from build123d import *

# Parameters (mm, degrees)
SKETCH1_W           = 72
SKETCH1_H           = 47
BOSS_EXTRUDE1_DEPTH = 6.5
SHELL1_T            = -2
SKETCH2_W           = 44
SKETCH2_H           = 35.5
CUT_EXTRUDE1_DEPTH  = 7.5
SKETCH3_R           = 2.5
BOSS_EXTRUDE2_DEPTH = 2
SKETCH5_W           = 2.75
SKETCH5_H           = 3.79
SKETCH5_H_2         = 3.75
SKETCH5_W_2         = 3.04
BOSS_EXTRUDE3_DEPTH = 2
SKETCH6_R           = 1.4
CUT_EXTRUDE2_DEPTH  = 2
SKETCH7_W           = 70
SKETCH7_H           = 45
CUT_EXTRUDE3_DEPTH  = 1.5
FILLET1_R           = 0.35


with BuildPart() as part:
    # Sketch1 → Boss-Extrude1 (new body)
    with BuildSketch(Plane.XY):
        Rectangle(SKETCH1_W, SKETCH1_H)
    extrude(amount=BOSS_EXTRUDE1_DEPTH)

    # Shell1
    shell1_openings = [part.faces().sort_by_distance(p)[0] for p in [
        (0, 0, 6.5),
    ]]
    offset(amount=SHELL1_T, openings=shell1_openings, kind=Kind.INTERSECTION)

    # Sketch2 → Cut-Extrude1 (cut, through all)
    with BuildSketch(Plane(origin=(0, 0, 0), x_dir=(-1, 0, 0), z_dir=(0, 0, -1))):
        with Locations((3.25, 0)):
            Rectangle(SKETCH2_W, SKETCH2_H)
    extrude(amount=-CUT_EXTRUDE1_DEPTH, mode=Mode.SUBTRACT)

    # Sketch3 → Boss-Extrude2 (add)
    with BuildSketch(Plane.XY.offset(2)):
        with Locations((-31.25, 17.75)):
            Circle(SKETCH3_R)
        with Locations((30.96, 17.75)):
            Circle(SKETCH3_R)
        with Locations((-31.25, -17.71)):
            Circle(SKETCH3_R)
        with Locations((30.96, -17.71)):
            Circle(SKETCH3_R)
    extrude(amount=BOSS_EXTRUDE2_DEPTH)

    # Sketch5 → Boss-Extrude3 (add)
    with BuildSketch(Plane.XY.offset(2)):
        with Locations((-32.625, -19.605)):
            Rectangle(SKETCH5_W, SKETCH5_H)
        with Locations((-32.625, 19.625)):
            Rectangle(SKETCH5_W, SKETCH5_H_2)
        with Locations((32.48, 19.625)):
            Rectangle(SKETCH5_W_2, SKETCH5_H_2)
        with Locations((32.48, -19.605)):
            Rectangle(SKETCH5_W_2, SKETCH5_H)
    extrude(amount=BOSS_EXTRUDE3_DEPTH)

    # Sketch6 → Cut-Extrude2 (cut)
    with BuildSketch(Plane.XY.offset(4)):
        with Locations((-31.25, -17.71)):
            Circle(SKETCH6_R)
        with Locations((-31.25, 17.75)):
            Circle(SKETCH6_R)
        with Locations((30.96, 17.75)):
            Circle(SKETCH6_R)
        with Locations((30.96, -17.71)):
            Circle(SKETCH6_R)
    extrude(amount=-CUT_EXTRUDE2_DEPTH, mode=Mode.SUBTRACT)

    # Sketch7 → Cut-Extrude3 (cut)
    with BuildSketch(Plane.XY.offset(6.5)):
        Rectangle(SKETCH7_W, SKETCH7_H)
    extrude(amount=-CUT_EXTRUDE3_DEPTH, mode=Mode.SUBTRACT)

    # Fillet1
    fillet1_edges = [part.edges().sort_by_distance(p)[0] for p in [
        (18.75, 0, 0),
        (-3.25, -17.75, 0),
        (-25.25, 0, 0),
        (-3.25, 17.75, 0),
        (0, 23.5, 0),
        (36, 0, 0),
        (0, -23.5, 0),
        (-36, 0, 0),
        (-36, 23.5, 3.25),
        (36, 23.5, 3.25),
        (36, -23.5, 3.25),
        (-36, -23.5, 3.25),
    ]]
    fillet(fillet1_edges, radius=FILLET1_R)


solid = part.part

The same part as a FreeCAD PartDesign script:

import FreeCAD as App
import Part
import Sketcher

V = App.Vector
Q = App.Units.Quantity


def edges_at(feature, points):
    """Names of the edges that pass closest to the given points."""
    edges = feature.Shape.Edges
    near = lambda p: min(range(len(edges)), key=lambda i: edges[i].distToShape(Part.Vertex(*p))[0])
    return sorted({f"Edge{near(p) + 1}" for p in points})


def faces_at(feature, points):
    """Names of the faces that lie closest to the given points."""
    faces = feature.Shape.Faces
    near = lambda p: min(range(len(faces)), key=lambda i: faces[i].distToShape(Part.Vertex(*p))[0])
    return sorted({f"Face{near(p) + 1}" for p in points})

doc = App.newDocument("Part")
params = doc.addObject("Spreadsheet::Sheet", "Params")
for row, (alias, value) in enumerate([
    ("sketch1_width", "72 mm"),
    ("sketch1_height", "47 mm"),
    ("pad1_length", "6.5 mm"),
    ("thickness_wall", "2 mm"),
    ("sketch2_width", "44 mm"),
    ("sketch2_height", "35.5 mm"),
    ("sketch3_diameter", "5 mm"),
    ("pad2_length", "2 mm"),
    ("sketch4_width", "2.75 mm"),
    ("sketch4_width2", "3.04 mm"),
    ("sketch4_height", "3.79 mm"),
    ("sketch4_height2", "3.75 mm"),
    ("pad3_length", "2 mm"),
    ("sketch5_diameter", "2.8 mm"),
    ("pocket2_length", "2 mm"),
    ("sketch6_width", "70 mm"),
    ("sketch6_height", "45 mm"),
    ("pocket3_length", "1.5 mm"),
    ("fillet_radius", "0.35 mm"),
], start=1):
    params.set(f"A{row}", alias)
    params.set(f"B{row}", "=" + value)
    params.setAlias(f"B{row}", alias)

body = doc.addObject("PartDesign::Body", "Body")

# Sketch on XY plane
sketch1 = body.newObject("Sketcher::SketchObject", "Sketch")
sketch1.AttachmentSupport = (doc.getObject("XY_Plane"), [""])
sketch1.MapMode = "FlatFace"
sketch1.addGeometry([
    Part.LineSegment(V(-36, 23.5, 0), V(-36, -23.5, 0)),
    Part.LineSegment(V(-36, -23.5, 0), V(36, -23.5, 0)),
    Part.LineSegment(V(36, -23.5, 0), V(36, 23.5, 0)),
    Part.LineSegment(V(36, 23.5, 0), V(-36, 23.5, 0)),
], False)
sketch1.addConstraint([
    Sketcher.Constraint("Coincident", 0, 2, 1, 1),
    Sketcher.Constraint("Coincident", 1, 2, 2, 1),
    Sketcher.Constraint("Coincident", 2, 2, 3, 1),
    Sketcher.Constraint("Coincident", 3, 2, 0, 1),
    Sketcher.Constraint("Vertical", 0),
    Sketcher.Constraint("Horizontal", 1),
    Sketcher.Constraint("Vertical", 2),
    Sketcher.Constraint("Horizontal", 3),
    Sketcher.Constraint("Symmetric", 0, 2, 2, 2, -1, 1),
    Sketcher.Constraint("DistanceX", 1, 1, 1, 2, Q("72 mm")),
    Sketcher.Constraint("DistanceY", 0, 2, 0, 1, Q("47 mm")),
])
sketch1.setExpression("Constraints[9]", "Params.sketch1_width")
sketch1.setExpression("Constraints[10]", "Params.sketch1_height")
pad1 = body.newObject("PartDesign::Pad", "Pad")
pad1.Profile = sketch1
pad1.setExpression("Length", "Params.pad1_length")
doc.recompute()

thickness = body.newObject("PartDesign::Thickness", "Thickness")
thickness.Base = (pad1, faces_at(pad1, [(0, 0, 6.5)]))
thickness.setExpression("Value", "Params.thickness_wall")
thickness.Reversed = True
thickness.Join = "Intersection"

# Sketch on XY plane
sketch2 = body.newObject("Sketcher::SketchObject", "Sketch001")
sketch2.AttachmentSupport = (doc.getObject("XY_Plane"), [""])
sketch2.MapMode = "FlatFace"
sketch2.addGeometry([
    Part.LineSegment(V(18.75, 17.75, 0), V(18.75, -17.75, 0)),
    Part.LineSegment(V(18.75, -17.75, 0), V(-25.25, -17.75, 0)),
    Part.LineSegment(V(-25.25, -17.75, 0), V(-25.25, 17.75, 0)),
    Part.LineSegment(V(-25.25, 17.75, 0), V(18.75, 17.75, 0)),
], False)
sketch2.addConstraint([
    Sketcher.Constraint("Coincident", 0, 2, 1, 1),
    Sketcher.Constraint("Coincident", 1, 2, 2, 1),
    Sketcher.Constraint("Coincident", 2, 2, 3, 1),
    Sketcher.Constraint("Coincident", 3, 2, 0, 1),
    Sketcher.Constraint("Vertical", 0),
    Sketcher.Constraint("Horizontal", 1),
    Sketcher.Constraint("Vertical", 2),
    Sketcher.Constraint("Horizontal", 3),
    Sketcher.Constraint("DistanceX", 1, 2, 1, 1, Q("44 mm")),
    Sketcher.Constraint("DistanceY", 0, 2, 0, 1, Q("35.5 mm")),
    Sketcher.Constraint("DistanceX", -1, 1, 0, 2, Q("18.75 mm")),
    Sketcher.Constraint("DistanceY", 0, 2, -1, 1, Q("17.75 mm")),
])
sketch2.setExpression("Constraints[8]", "Params.sketch2_width")
sketch2.setExpression("Constraints[9]", "Params.sketch2_height")
pocket1 = body.newObject("PartDesign::Pocket", "Pocket")
pocket1.Profile = sketch2
pocket1.Type = "ThroughAll"
pocket1.Reversed = True

# Sketch on XY plane
sketch3 = body.newObject("Sketcher::SketchObject", "Sketch002")
sketch3.AttachmentSupport = (doc.getObject("XY_Plane"), [""])
sketch3.MapMode = "FlatFace"
sketch3.AttachmentOffset = App.Placement(V(0, 0, 2), App.Rotation())
sketch3.addGeometry([
    Part.Circle(V(-31.25, 17.75, 0), V(0, 0, 1), 2.5),
    Part.Circle(V(30.96, 17.75, 0), V(0, 0, 1), 2.5),
    Part.Circle(V(-31.25, -17.71, 0), V(0, 0, 1), 2.5),
    Part.Circle(V(30.96, -17.71, 0), V(0, 0, 1), 2.5),
], False)
sketch3.addConstraint([
    Sketcher.Constraint("Equal", 0, 1),
    Sketcher.Constraint("Equal", 1, 2),
    Sketcher.Constraint("Equal", 2, 3),
    Sketcher.Constraint("Horizontal", 0, 3, 1, 3),
    Sketcher.Constraint("Horizontal", 2, 3, 3, 3),
    Sketcher.Constraint("Vertical", 0, 3, 2, 3),
    Sketcher.Constraint("Vertical", 1, 3, 3, 3),
    Sketcher.Constraint("Diameter", 0, Q("5 mm")),
    Sketcher.Constraint("DistanceX", 0, 3, -1, 1, Q("31.25 mm")),
    Sketcher.Constraint("DistanceY", -1, 1, 0, 3, Q("17.75 mm")),
    Sketcher.Constraint("DistanceX", -1, 1, 1, 3, Q("30.96 mm")),
    Sketcher.Constraint("DistanceY", 2, 3, -1, 1, Q("17.71 mm")),
])
sketch3.setExpression("Constraints[7]", "Params.sketch3_diameter")
pad2 = body.newObject("PartDesign::Pad", "Pad001")
pad2.Profile = sketch3
pad2.setExpression("Length", "Params.pad2_length")

# Sketch on XY plane
sketch4 = body.newObject("Sketcher::SketchObject", "Sketch003")
sketch4.AttachmentSupport = (doc.getObject("XY_Plane"), [""])
sketch4.MapMode = "FlatFace"
sketch4.AttachmentOffset = App.Placement(V(0, 0, 2), App.Rotation())
sketch4.addGeometry([
    Part.LineSegment(V(-34, -17.71, 0), V(-34, -21.5, 0)),  # 0
    Part.LineSegment(V(-34, -21.5, 0), V(-31.25, -21.5, 0)),  # 1
    Part.LineSegment(V(-31.25, -21.5, 0), V(-31.25, -17.71, 0)),  # 2
    Part.LineSegment(V(-31.25, -17.71, 0), V(-34, -17.71, 0)),  # 3
    Part.LineSegment(V(-34, 21.5, 0), V(-34, 17.75, 0)),  # 4
    Part.LineSegment(V(-34, 17.75, 0), V(-31.25, 17.75, 0)),  # 5
    Part.LineSegment(V(-31.25, 17.75, 0), V(-31.25, 21.5, 0)),  # 6
    Part.LineSegment(V(-31.25, 21.5, 0), V(-34, 21.5, 0)),  # 7
    Part.LineSegment(V(30.96, 21.5, 0), V(30.96, 17.75, 0)),  # 8
    Part.LineSegment(V(30.96, 17.75, 0), V(34, 17.75, 0)),  # 9
    Part.LineSegment(V(34, 17.75, 0), V(34, 21.5, 0)),  # 10
    Part.LineSegment(V(34, 21.5, 0), V(30.96, 21.5, 0)),  # 11
    Part.LineSegment(V(30.96, -17.71, 0), V(30.96, -21.5, 0)),  # 12
    Part.LineSegment(V(30.96, -21.5, 0), V(34, -21.5, 0)),  # 13
    Part.LineSegment(V(34, -21.5, 0), V(34, -17.71, 0)),  # 14
    Part.LineSegment(V(34, -17.71, 0), V(30.96, -17.71, 0)),  # 15
], False)
sketch4.addConstraint([
    Sketcher.Constraint("Coincident", 0, 2, 1, 1),
    Sketcher.Constraint("Coincident", 1, 2, 2, 1),
    Sketcher.Constraint("Coincident", 2, 2, 3, 1),
    Sketcher.Constraint("Coincident", 3, 2, 0, 1),
    Sketcher.Constraint("Coincident", 4, 2, 5, 1),
    Sketcher.Constraint("Coincident", 5, 2, 6, 1),
    Sketcher.Constraint("Coincident", 6, 2, 7, 1),
    Sketcher.Constraint("Coincident", 7, 2, 4, 1),
    Sketcher.Constraint("Coincident", 8, 2, 9, 1),
    Sketcher.Constraint("Coincident", 9, 2, 10, 1),
    Sketcher.Constraint("Coincident", 10, 2, 11, 1),
    Sketcher.Constraint("Coincident", 11, 2, 8, 1),
    Sketcher.Constraint("Coincident", 12, 2, 13, 1),
    Sketcher.Constraint("Coincident", 13, 2, 14, 1),
    Sketcher.Constraint("Coincident", 14, 2, 15, 1),
    Sketcher.Constraint("Coincident", 15, 2, 12, 1),
    Sketcher.Constraint("Vertical", 0),
    Sketcher.Constraint("Horizontal", 1),
    Sketcher.Constraint("Vertical", 2),
    Sketcher.Constraint("Horizontal", 3),
    Sketcher.Constraint("Vertical", 4),
    Sketcher.Constraint("Horizontal", 5),
    Sketcher.Constraint("Vertical", 6),
    Sketcher.Constraint("Horizontal", 7),
    Sketcher.Constraint("Vertical", 8),
    Sketcher.Constraint("Horizontal", 9),
    Sketcher.Constraint("Vertical", 10),
    Sketcher.Constraint("Horizontal", 11),
    Sketcher.Constraint("Vertical", 12),
    Sketcher.Constraint("Horizontal", 13),
    Sketcher.Constraint("Vertical", 14),
    Sketcher.Constraint("Horizontal", 15),
    Sketcher.Constraint("Symmetric", 0, 2, 10, 2, -1, 1),
    Sketcher.Constraint("Symmetric", 7, 2, 13, 2, -1, 1),
    Sketcher.Constraint("Symmetric", 4, 2, 9, 2, -2),
    Sketcher.Constraint("Symmetric", 1, 2, 6, 2, -1),
    Sketcher.Constraint("Horizontal", 3, 2, 14, 2),
    Sketcher.Constraint("Vertical", 11, 2, 12, 2),
    Sketcher.Constraint("DistanceX", 0, 2, -1, 1, Q("34 mm")),
    Sketcher.Constraint("DistanceY", 1, 2, 6, 2, Q("43 mm")),
    Sketcher.Constraint("DistanceX", 1, 1, 1, 2, Q("2.75 mm")),
    Sketcher.Constraint("DistanceX", 9, 1, 9, 2, Q("3.04 mm")),
    Sketcher.Constraint("DistanceY", 0, 2, 0, 1, Q("3.79 mm")),
    Sketcher.Constraint("DistanceY", 4, 2, 4, 1, Q("3.75 mm")),
])
sketch4.setExpression("Constraints[40]", "Params.sketch4_width")
sketch4.setExpression("Constraints[41]", "Params.sketch4_width2")
sketch4.setExpression("Constraints[42]", "Params.sketch4_height")
sketch4.setExpression("Constraints[43]", "Params.sketch4_height2")
pad3 = body.newObject("PartDesign::Pad", "Pad002")
pad3.Profile = sketch4
pad3.setExpression("Length", "Params.pad3_length")

# Sketch on XY plane
sketch5 = body.newObject("Sketcher::SketchObject", "Sketch004")
sketch5.AttachmentSupport = (doc.getObject("XY_Plane"), [""])
sketch5.MapMode = "FlatFace"
sketch5.AttachmentOffset = App.Placement(V(0, 0, 4), App.Rotation())
sketch5.addGeometry([
    Part.Circle(V(-31.25, -17.71, 0), V(0, 0, 1), 1.4),
    Part.Circle(V(-31.25, 17.75, 0), V(0, 0, 1), 1.4),
    Part.Circle(V(30.96, 17.75, 0), V(0, 0, 1), 1.4),
    Part.Circle(V(30.96, -17.71, 0), V(0, 0, 1), 1.4),
], False)
sketch5.addConstraint([
    Sketcher.Constraint("Equal", 0, 1),
    Sketcher.Constraint("Equal", 1, 2),
    Sketcher.Constraint("Equal", 2, 3),
    Sketcher.Constraint("Horizontal", 1, 3, 2, 3),
    Sketcher.Constraint("Horizontal", 0, 3, 3, 3),
    Sketcher.Constraint("Vertical", 0, 3, 1, 3),
    Sketcher.Constraint("Vertical", 2, 3, 3, 3),
    Sketcher.Constraint("Diameter", 0, Q("2.8 mm")),
    Sketcher.Constraint("DistanceX", 0, 3, -1, 1, Q("31.25 mm")),
    Sketcher.Constraint("DistanceY", 0, 3, -1, 1, Q("17.71 mm")),
    Sketcher.Constraint("DistanceY", -1, 1, 1, 3, Q("17.75 mm")),
    Sketcher.Constraint("DistanceX", -1, 1, 2, 3, Q("30.96 mm")),
])
sketch5.setExpression("Constraints[7]", "Params.sketch5_diameter")
pocket2 = body.newObject("PartDesign::Pocket", "Pocket001")
pocket2.Profile = sketch5
pocket2.setExpression("Length", "Params.pocket2_length")

# Sketch on XY plane
sketch6 = body.newObject("Sketcher::SketchObject", "Sketch005")
sketch6.AttachmentSupport = (doc.getObject("XY_Plane"), [""])
sketch6.MapMode = "FlatFace"
sketch6.AttachmentOffset = App.Placement(V(0, 0, 6.5), App.Rotation())
sketch6.addGeometry([
    Part.LineSegment(V(-35, 22.5, 0), V(-35, -22.5, 0)),
    Part.LineSegment(V(-35, -22.5, 0), V(35, -22.5, 0)),
    Part.LineSegment(V(35, -22.5, 0), V(35, 22.5, 0)),
    Part.LineSegment(V(35, 22.5, 0), V(-35, 22.5, 0)),
], False)
sketch6.addConstraint([
    Sketcher.Constraint("Coincident", 0, 2, 1, 1),
    Sketcher.Constraint("Coincident", 1, 2, 2, 1),
    Sketcher.Constraint("Coincident", 2, 2, 3, 1),
    Sketcher.Constraint("Coincident", 3, 2, 0, 1),
    Sketcher.Constraint("Vertical", 0),
    Sketcher.Constraint("Horizontal", 1),
    Sketcher.Constraint("Vertical", 2),
    Sketcher.Constraint("Horizontal", 3),
    Sketcher.Constraint("Symmetric", 0, 2, 2, 2, -1, 1),
    Sketcher.Constraint("DistanceX", 1, 1, 1, 2, Q("70 mm")),
    Sketcher.Constraint("DistanceY", 0, 2, 0, 1, Q("45 mm")),
])
sketch6.setExpression("Constraints[9]", "Params.sketch6_width")
sketch6.setExpression("Constraints[10]", "Params.sketch6_height")
pocket3 = body.newObject("PartDesign::Pocket", "Pocket002")
pocket3.Profile = sketch6
pocket3.setExpression("Length", "Params.pocket3_length")
doc.recompute()

fillet = body.newObject("PartDesign::Fillet", "Fillet")
fillet.Base = (pocket3, edges_at(pocket3, [
    (18.75, 0, 0),
    (-3.25, -17.75, 0),
    (-25.25, 0, 0),
    (-3.25, 17.75, 0),
    (0, 23.5, 0),
    (36, 0, 0),
    (0, -23.5, 0),
    (-36, 0, 0),
    (-36, 23.5, 3.25),
    (36, 23.5, 3.25),
    (36, -23.5, 3.25),
    (-36, -23.5, 3.25),
]))
fillet.setExpression("Radius", "Params.fillet_radius")

doc.recompute()
